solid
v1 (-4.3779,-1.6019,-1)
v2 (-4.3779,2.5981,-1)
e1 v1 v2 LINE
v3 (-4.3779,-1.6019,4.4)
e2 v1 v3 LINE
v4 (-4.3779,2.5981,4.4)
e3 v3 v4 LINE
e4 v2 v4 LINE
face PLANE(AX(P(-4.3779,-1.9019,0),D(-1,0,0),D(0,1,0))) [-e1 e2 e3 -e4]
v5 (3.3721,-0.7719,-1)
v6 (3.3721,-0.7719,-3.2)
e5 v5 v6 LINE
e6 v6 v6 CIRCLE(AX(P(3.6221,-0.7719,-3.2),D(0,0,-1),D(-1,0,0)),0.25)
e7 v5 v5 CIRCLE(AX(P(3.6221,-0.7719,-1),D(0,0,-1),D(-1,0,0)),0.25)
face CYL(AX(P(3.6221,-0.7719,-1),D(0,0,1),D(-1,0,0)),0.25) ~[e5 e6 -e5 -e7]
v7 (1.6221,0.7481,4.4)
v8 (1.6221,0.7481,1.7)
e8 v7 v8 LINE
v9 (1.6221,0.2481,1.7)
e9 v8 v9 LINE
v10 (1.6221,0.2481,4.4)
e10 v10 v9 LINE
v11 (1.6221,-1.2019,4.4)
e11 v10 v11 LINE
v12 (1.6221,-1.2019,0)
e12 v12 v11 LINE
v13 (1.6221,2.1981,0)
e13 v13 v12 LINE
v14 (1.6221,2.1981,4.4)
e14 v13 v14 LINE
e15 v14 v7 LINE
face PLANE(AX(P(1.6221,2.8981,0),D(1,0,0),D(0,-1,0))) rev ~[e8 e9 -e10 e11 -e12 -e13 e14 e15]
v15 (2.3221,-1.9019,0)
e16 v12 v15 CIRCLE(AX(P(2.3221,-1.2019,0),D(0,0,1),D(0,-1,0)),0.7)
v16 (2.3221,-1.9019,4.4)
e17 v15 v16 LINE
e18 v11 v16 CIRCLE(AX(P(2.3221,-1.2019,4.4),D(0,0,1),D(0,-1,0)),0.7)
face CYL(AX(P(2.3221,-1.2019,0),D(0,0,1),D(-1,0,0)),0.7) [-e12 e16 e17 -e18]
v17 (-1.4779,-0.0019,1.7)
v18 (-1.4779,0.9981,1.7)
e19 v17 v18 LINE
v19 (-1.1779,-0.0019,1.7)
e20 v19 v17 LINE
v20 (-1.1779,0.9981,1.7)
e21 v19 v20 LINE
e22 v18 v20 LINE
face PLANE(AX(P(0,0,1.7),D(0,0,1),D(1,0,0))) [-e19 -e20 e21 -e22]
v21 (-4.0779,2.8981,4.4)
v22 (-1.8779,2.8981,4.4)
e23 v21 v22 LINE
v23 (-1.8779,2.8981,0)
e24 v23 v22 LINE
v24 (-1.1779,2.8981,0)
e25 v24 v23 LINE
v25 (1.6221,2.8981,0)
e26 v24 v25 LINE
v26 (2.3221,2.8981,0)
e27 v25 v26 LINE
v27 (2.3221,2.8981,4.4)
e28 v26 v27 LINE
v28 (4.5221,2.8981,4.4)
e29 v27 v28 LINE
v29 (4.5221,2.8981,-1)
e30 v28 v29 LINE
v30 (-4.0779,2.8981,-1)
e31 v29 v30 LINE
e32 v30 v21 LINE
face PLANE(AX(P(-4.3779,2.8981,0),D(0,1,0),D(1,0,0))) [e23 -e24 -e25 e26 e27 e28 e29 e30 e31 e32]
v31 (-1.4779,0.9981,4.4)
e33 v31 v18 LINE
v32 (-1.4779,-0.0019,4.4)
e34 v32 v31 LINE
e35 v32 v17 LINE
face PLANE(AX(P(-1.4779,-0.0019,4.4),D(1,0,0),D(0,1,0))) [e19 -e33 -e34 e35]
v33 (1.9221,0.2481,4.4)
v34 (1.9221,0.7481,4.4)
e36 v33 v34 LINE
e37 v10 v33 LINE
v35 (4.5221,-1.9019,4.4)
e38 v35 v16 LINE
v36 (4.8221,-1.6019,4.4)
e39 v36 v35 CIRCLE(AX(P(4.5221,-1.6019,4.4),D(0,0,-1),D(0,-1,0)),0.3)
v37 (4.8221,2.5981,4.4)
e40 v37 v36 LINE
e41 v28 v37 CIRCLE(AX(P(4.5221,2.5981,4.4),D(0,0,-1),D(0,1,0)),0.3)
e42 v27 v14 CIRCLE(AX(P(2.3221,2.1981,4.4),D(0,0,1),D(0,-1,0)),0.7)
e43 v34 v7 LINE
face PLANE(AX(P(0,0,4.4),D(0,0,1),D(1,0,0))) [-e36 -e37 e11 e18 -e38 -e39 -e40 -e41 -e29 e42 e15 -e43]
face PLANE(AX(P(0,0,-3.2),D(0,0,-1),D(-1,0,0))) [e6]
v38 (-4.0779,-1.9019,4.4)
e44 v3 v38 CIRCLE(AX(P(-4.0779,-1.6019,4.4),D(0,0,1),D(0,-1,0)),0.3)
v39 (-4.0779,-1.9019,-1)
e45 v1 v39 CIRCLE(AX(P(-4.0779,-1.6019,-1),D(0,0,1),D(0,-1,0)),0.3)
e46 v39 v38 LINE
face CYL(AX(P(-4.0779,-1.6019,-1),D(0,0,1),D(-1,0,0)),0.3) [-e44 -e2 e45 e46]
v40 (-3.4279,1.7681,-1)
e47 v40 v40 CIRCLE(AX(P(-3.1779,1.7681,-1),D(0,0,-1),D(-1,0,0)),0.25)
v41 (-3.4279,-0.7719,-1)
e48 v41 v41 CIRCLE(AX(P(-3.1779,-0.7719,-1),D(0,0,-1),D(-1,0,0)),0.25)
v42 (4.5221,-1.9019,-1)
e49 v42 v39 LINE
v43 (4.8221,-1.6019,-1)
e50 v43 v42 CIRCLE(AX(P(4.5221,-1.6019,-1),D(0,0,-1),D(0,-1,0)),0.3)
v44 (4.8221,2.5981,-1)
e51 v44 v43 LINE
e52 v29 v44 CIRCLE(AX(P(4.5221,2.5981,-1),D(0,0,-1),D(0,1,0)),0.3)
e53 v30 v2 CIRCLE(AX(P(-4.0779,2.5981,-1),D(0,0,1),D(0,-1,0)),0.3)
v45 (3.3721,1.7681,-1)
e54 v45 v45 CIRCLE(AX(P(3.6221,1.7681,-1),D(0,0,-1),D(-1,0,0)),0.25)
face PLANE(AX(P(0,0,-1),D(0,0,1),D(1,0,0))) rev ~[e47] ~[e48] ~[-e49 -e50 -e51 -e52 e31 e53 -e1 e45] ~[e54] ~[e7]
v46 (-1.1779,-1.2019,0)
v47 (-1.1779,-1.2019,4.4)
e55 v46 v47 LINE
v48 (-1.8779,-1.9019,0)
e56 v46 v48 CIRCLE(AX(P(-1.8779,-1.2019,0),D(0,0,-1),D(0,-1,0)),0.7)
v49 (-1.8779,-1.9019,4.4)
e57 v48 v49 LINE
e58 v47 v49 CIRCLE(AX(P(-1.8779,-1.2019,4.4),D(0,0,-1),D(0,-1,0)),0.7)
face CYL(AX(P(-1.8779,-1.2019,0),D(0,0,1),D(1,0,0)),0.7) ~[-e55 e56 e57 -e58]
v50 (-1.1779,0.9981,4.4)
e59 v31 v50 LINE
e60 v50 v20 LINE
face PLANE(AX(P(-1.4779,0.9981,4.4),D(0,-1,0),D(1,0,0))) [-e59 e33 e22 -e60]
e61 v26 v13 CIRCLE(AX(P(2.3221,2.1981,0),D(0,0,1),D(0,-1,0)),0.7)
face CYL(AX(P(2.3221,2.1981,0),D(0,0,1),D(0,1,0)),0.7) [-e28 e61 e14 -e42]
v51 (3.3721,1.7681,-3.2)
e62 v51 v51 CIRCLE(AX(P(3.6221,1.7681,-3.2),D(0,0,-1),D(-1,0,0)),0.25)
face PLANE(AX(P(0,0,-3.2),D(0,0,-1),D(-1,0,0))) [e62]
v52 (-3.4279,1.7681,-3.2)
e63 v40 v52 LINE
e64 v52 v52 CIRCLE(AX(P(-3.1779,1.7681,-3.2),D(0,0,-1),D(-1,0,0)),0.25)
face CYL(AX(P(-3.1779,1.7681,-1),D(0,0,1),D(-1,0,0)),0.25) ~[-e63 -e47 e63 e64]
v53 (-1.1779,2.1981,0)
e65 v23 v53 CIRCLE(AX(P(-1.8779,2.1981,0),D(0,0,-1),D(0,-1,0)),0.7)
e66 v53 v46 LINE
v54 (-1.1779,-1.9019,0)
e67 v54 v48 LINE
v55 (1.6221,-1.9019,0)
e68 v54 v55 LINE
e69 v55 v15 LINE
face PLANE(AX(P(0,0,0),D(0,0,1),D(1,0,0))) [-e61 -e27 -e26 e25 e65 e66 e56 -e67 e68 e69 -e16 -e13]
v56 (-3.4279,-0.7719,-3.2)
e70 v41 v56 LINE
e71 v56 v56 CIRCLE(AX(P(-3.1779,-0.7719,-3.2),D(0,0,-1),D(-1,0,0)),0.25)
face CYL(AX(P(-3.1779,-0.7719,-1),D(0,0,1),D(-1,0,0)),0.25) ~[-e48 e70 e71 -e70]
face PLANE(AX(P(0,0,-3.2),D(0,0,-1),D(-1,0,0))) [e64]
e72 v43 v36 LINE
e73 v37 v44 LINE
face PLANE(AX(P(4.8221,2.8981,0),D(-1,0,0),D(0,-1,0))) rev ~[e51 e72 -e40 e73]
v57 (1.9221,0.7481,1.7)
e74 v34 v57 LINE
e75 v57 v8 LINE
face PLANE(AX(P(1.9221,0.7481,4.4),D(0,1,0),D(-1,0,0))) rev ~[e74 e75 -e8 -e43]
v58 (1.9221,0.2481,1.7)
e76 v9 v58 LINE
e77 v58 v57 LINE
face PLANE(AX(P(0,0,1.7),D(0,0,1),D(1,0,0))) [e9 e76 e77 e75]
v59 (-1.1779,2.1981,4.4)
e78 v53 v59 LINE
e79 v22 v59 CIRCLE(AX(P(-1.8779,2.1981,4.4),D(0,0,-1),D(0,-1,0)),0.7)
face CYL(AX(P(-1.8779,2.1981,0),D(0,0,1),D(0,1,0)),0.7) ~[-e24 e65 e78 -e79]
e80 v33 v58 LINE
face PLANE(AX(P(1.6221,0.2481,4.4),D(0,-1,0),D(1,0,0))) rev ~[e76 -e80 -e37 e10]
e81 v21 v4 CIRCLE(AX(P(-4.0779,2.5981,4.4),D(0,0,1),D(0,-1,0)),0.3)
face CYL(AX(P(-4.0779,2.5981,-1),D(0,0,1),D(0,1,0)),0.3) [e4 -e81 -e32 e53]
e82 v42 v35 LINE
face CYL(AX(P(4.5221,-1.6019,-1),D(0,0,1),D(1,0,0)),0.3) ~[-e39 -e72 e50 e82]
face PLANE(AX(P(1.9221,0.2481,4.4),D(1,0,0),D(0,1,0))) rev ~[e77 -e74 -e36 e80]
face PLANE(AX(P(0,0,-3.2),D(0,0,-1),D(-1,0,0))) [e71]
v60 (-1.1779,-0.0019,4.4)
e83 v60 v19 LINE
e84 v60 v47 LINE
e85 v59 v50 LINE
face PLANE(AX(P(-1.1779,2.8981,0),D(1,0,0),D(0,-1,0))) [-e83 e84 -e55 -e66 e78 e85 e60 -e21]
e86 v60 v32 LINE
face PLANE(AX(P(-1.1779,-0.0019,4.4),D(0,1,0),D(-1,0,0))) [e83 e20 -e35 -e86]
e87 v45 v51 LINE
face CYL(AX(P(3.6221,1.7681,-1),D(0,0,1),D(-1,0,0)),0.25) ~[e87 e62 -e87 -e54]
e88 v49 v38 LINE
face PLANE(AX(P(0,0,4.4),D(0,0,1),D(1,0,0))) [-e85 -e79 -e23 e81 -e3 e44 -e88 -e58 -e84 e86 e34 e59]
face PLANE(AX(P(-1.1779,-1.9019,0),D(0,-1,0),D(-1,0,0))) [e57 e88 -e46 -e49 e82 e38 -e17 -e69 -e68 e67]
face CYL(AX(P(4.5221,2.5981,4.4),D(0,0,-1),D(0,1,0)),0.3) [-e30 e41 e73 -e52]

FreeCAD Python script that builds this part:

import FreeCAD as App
import Part
import Sketcher
Q = App.Units.Quantity


def edges_at(feature, points):
    """Names of the edges that pass closest to the given points."""
    edges = feature.Shape.Edges
    near = lambda p: min(range(len(edges)), key=lambda i: edges[i].distToShape(Part.Vertex(*p))[0])
    return sorted({f"Edge{near(p) + 1}" for p in points})

doc = App.newDocument("Part")
params = doc.addObject("Spreadsheet::Sheet", "Params")
for row, (alias, value) in enumerate([
    ("sketch1_width", "3.2 mm"),
    ("sketch1_height", "4.8 mm"),
    ("pad1_length", "4.4 mm"),
    ("sketch2_width", "9.2 mm"),
    ("sketch2_height", "4.8 mm"),
    ("pad2_length", "1 mm"),
    ("sketch3_diameter", "0.5 mm"),
    ("pad3_length", "2.2 mm"),
    ("sketch4_height", "1 mm"),
    ("sketch4_width", "0.3 mm"),
    ("sketch4_height2", "0.5 mm"),
    ("pocket1_length", "2.7 mm"),
    ("fillet_radius", "0.7 mm"),
    ("fillet2_radius", "0.3 mm"),
], start=1):
    params.set(f"A{row}", alias)
    params.set(f"B{row}", "=" + value)
    params.setAlias(f"B{row}", alias)

body = doc.addObject("PartDesign::Body", "Body")
body.AllowCompound = True

# Sketch on XY plane
sketch1 = body.newObject("Sketcher::SketchObject", "Sketch")
sketch1.AttachmentSupport = (doc.getObject("XY_Plane"), [""])
sketch1.MapMode = "FlatFace"
sketch1.addGeometry(Part.LineSegment(App.Vector(-1.1779, 2.8981, 0), App.Vector(-4.3779, 2.8981, 0)), False)
sketch1.addGeometry(Part.LineSegment(App.Vector(-4.3779, 2.8981, 0), App.Vector(-4.3779, -1.9019, 0)), False)
sketch1.addGeometry(Part.LineSegment(App.Vector(-4.3779, -1.9019, 0), App.Vector(-1.1779, -1.9019, 0)), False)
sketch1.addGeometry(Part.LineSegment(App.Vector(-1.1779, -1.9019, 0), App.Vector(-1.1779, 2.8981, 0)), False)
sketch1.addGeometry(Part.LineSegment(App.Vector(4.8221, 2.8981, 0), App.Vector(1.6221, 2.8981, 0)), False)
sketch1.addGeometry(Part.LineSegment(App.Vector(1.6221, 2.8981, 0), App.Vector(1.6221, -1.9019, 0)), False)
sketch1.addGeometry(Part.LineSegment(App.Vector(1.6221, -1.9019, 0), App.Vector(4.8221, -1.9019, 0)), False)
sketch1.addGeometry(Part.LineSegment(App.Vector(4.8221, -1.9019, 0), App.Vector(4.8221, 2.8981, 0)), False)
sketch1.addConstraint(Sketcher.Constraint("Coincident", 0, 2, 1, 1))
sketch1.addConstraint(Sketcher.Constraint("Coincident", 1, 2, 2, 1))
sketch1.addConstraint(Sketcher.Constraint("Coincident", 2, 2, 3, 1))
sketch1.addConstraint(Sketcher.Constraint("Coincident", 3, 2, 0, 1))
sketch1.addConstraint(Sketcher.Constraint("Coincident", 4, 2, 5, 1))
sketch1.addConstraint(Sketcher.Constraint("Coincident", 5, 2, 6, 1))
sketch1.addConstraint(Sketcher.Constraint("Coincident", 6, 2, 7, 1))
sketch1.addConstraint(Sketcher.Constraint("Coincident", 7, 2, 4, 1))
sketch1.addConstraint(Sketcher.Constraint("Horizontal", 0))
sketch1.addConstraint(Sketcher.Constraint("Vertical", 1))
sketch1.addConstraint(Sketcher.Constraint("Horizontal", 2))
sketch1.addConstraint(Sketcher.Constraint("Vertical", 3))
sketch1.addConstraint(Sketcher.Constraint("Horizontal", 4))
sketch1.addConstraint(Sketcher.Constraint("Vertical", 5))
sketch1.addConstraint(Sketcher.Constraint("Horizontal", 6))
sketch1.addConstraint(Sketcher.Constraint("Vertical", 7))
sketch1.addConstraint(Sketcher.Constraint("Horizontal", 3, 2, 4, 2))
sketch1.addConstraint(Sketcher.Constraint("Horizontal", 2, 2, 5, 2))
sketch1.addConstraint(Sketcher.Constraint("Equal", 2, 4))
sketch1.addConstraint(Sketcher.Constraint("DistanceX", 0, 2, 0, 1, Q("3.2 mm")))
sketch1.addConstraint(Sketcher.Constraint("DistanceY", 1, 2, 1, 1, Q("4.8 mm")))
sketch1.addConstraint(Sketcher.Constraint("DistanceX", 3, 2, 4, 2, Q("2.8 mm")))
sketch1.addConstraint(Sketcher.Constraint("DistanceX", 0, 2, -1, 1, Q("4.378 mm")))
sketch1.addConstraint(Sketcher.Constraint("DistanceY", -1, 1, 0, 2, Q("2.898 mm")))
sketch1.setExpression("Constraints[19]", "Params.sketch1_width")
sketch1.setExpression("Constraints[20]", "Params.sketch1_height")
pad1 = body.newObject("PartDesign::Pad", "Pad")
pad1.Profile = sketch1
pad1.setExpression("Length", "Params.pad1_length")

# Sketch on XY plane
sketch2 = body.newObject("Sketcher::SketchObject", "Sketch001")
sketch2.AttachmentSupport = (doc.getObject("XY_Plane"), [""])
sketch2.MapMode = "FlatFace"
sketch2.addGeometry(Part.LineSegment(App.Vector(-4.3779, 2.8981, 0), App.Vector(-4.3779, -1.9019, 0)), False)
sketch2.addGeometry(Part.LineSegment(App.Vector(-4.3779, -1.9019, 0), App.Vector(4.8221, -1.9019, 0)), False)
sketch2.addGeometry(Part.LineSegment(App.Vector(4.8221, -1.9019, 0), App.Vector(4.8221, 2.8981, 0)), False)
sketch2.addGeometry(Part.LineSegment(App.Vector(4.8221, 2.8981, 0), App.Vector(-4.3779, 2.8981, 0)), False)
sketch2.addConstraint(Sketcher.Constraint("Coincident", 0, 2, 1, 1))
sketch2.addConstraint(Sketcher.Constraint("Coincident", 1, 2, 2, 1))
sketch2.addConstraint(Sketcher.Constraint("Coincident", 2, 2, 3, 1))
sketch2.addConstraint(Sketcher.Constraint("Coincident", 3, 2, 0, 1))
sketch2.addConstraint(Sketcher.Constraint("Vertical", 0))
sketch2.addConstraint(Sketcher.Constraint("Horizontal", 1))
sketch2.addConstraint(Sketcher.Constraint("Vertical", 2))
sketch2.addConstraint(Sketcher.Constraint("Horizontal", 3))
sketch2.addConstraint(Sketcher.Constraint("DistanceX", 1, 1, 1, 2, Q("9.2 mm")))
sketch2.addConstraint(Sketcher.Constraint("DistanceY", 0, 2, 0, 1, Q("4.8 mm")))
sketch2.addConstraint(Sketcher.Constraint("DistanceX", 0, 2, -1, 1, Q("4.378 mm")))
sketch2.addConstraint(Sketcher.Constraint("DistanceY", 0, 2, -1, 1, Q("1.902 mm")))
sketch2.setExpression("Constraints[8]", "Params.sketch2_width")
sketch2.setExpression("Constraints[9]", "Params.sketch2_height")
pad2 = body.newObject("PartDesign::Pad", "Pad001")
pad2.Profile = sketch2
pad2.setExpression("Length", "Params.pad2_length")
pad2.Reversed = True

# Sketch on XY plane
sketch3 = body.newObject("Sketcher::SketchObject", "Sketch002")
sketch3.AttachmentSupport = (doc.getObject("XY_Plane"), [""])
sketch3.MapMode = "FlatFace"
sketch3.AttachmentOffset = App.Placement(App.Vector(0, 0, -1), App.Rotation())
sketch3.addGeometry(Part.Circle(App.Vector(3.6221, 1.7681, 0), App.Vector(0, 0, 1), 0.25), False)
sketch3.addGeometry(Part.Circle(App.Vector(3.6221, -0.7719, 0), App.Vector(0, 0, 1), 0.25), False)
sketch3.addGeometry(Part.Circle(App.Vector(-3.1779, 1.7681, 0), App.Vector(0, 0, 1), 0.25), False)
sketch3.addGeometry(Part.Circle(App.Vector(-3.1779, -0.7719, 0), App.Vector(0, 0, 1), 0.25), False)
sketch3.addConstraint(Sketcher.Constraint("Equal", 0, 1))
sketch3.addConstraint(Sketcher.Constraint("Equal", 1, 2))
sketch3.addConstraint(Sketcher.Constraint("Equal", 2, 3))
sketch3.addConstraint(Sketcher.Constraint("Horizontal", 0, 3, 2, 3))
sketch3.addConstraint(Sketcher.Constraint("Horizontal", 1, 3, 3, 3))
sketch3.addConstraint(Sketcher.Constraint("Vertical", 0, 3, 1, 3))
sketch3.addConstraint(Sketcher.Constraint("Vertical", 2, 3, 3, 3))
sketch3.addConstraint(Sketcher.Constraint("Diameter", 0, Q("0.5 mm")))
sketch3.addConstraint(Sketcher.Constraint("DistanceX", 2, 3, 0, 3, Q("6.8 mm")))
sketch3.addConstraint(Sketcher.Constraint("DistanceY", 1, 3, 0, 3, Q("2.54 mm")))
sketch3.addConstraint(Sketcher.Constraint("DistanceX", -1, 1, 0, 3, Q("3.622 mm")))
sketch3.addConstraint(Sketcher.Constraint("DistanceY", -1, 1, 0, 3, Q("1.768 mm")))
sketch3.setExpression("Constraints[7]", "Params.sketch3_diameter")
pad3 = body.newObject("PartDesign::Pad", "Pad002")
pad3.Profile = sketch3
pad3.setExpression("Length", "Params.pad3_length")
pad3.Reversed = True

# Sketch on XY plane
sketch4 = body.newObject("Sketcher::SketchObject", "Sketch003")
sketch4.AttachmentSupport = (doc.getObject("XY_Plane"), [""])
sketch4.MapMode = "FlatFace"
sketch4.AttachmentOffset = App.Placement(App.Vector(0, 0, 4.4), App.Rotation())
sketch4.addGeometry(Part.LineSegment(App.Vector(1.6221, 0.7481, 0), App.Vector(1.6221, 0.2481, 0)), False)
sketch4.addGeometry(Part.LineSegment(App.Vector(1.6221, 0.2481, 0), App.Vector(1.9221, 0.2481, 0)), False)
sketch4.addGeometry(Part.LineSegment(App.Vector(1.9221, 0.2481, 0), App.Vector(1.9221, 0.7481, 0)), False)
sketch4.addGeometry(Part.LineSegment(App.Vector(1.9221, 0.7481, 0), App.Vector(1.6221, 0.7481, 0)), False)
sketch4.addGeometry(Part.LineSegment(App.Vector(-1.1779, -0.0019, 0), App.Vector(-1.1779, 0.9981, 0)), False)
sketch4.addGeometry(Part.LineSegment(App.Vector(-1.1779, 0.9981, 0), App.Vector(-1.4779, 0.9981, 0)), False)
sketch4.addGeometry(Part.LineSegment(App.Vector(-1.4779, 0.9981, 0), App.Vector(-1.4779, -0.0019, 0)), False)
sketch4.addGeometry(Part.LineSegment(App.Vector(-1.4779, -0.0019, 0), App.Vector(-1.1779, -0.0019, 0)), False)
sketch4.addConstraint(Sketcher.Constraint("Coincident", 0, 2, 1, 1))
sketch4.addConstraint(Sketcher.Constraint("Coincident", 1, 2, 2, 1))
sketch4.addConstraint(Sketcher.Constraint("Coincident", 2, 2, 3, 1))
sketch4.addConstraint(Sketcher.Constraint("Coincident", 3, 2, 0, 1))
sketch4.addConstraint(Sketcher.Constraint("Coincident", 4, 2, 5, 1))
sketch4.addConstraint(Sketcher.Constraint("Coincident", 5, 2, 6, 1))
sketch4.addConstraint(Sketcher.Constraint("Coincident", 6, 2, 7, 1))
sketch4.addConstraint(Sketcher.Constraint("Coincident", 7, 2, 4, 1))
sketch4.addConstraint(Sketcher.Constraint("Vertical", 0))
sketch4.addConstraint(Sketcher.Constraint("Horizontal", 1))
sketch4.addConstraint(Sketcher.Constraint("Vertical", 2))
sketch4.addConstraint(Sketcher.Constraint("Horizontal", 3))
sketch4.addConstraint(Sketcher.Constraint("Vertical", 4))
sketch4.addConstraint(Sketcher.Constraint("Horizontal", 5))
sketch4.addConstraint(Sketcher.Constraint("Vertical", 6))
sketch4.addConstraint(Sketcher.Constraint("Horizontal", 7))
sketch4.addConstraint(Sketcher.Constraint("Equal", 3, 5))
sketch4.addConstraint(Sketcher.Constraint("DistanceY", 4, 1, 4, 2, Q("1 mm")))
sketch4.addConstraint(Sketcher.Constraint("DistanceX", 1, 1, 1, 2, Q("0.3 mm")))
sketch4.addConstraint(Sketcher.Constraint("DistanceY", 0, 2, 0, 1, Q("0.5 mm")))
sketch4.addConstraint(Sketcher.Constraint("DistanceX", 4, 2, 3, 2, Q("2.8 mm")))
sketch4.addConstraint(Sketcher.Constraint("DistanceY", 3, 2, 4, 2, Q("0.25 mm")))
sketch4.addConstraint(Sketcher.Constraint("DistanceX", -1, 1, 0, 2, Q("1.622 mm")))
sketch4.addConstraint(Sketcher.Constraint("DistanceY", -1, 1, 0, 2, Q("0.248 mm")))
sketch4.setExpression("Constraints[17]", "Params.sketch4_height")
sketch4.setExpression("Constraints[18]", "Params.sketch4_width")
sketch4.setExpression("Constraints[19]", "Params.sketch4_height2")
pocket1 = body.newObject("PartDesign::Pocket", "Pocket")
pocket1.Profile = sketch4
pocket1.setExpression("Length", "Params.pocket1_length")
doc.recompute()

fillet = body.newObject("PartDesign::Fillet", "Fillet")
fillet.Base = (pocket1, edges_at(pocket1, [
    (1.622, -1.902, 2.2),
    (1.622, 2.898, 2.2),
    (-1.178, 2.898, 2.2),
    (-1.178, -1.902, 2.2),
]))
fillet.setExpression("Radius", "Params.fillet_radius")
doc.recompute()

fillet2 = body.newObject("PartDesign::Fillet", "Fillet001")
fillet2.Base = (fillet, edges_at(fillet, [
    (-4.378, -1.902, 1.7),
    (-4.378, 2.898, 1.7),
    (4.822, 2.898, 1.7),
    (4.822, -1.902, 1.7),
]))
fillet2.setExpression("Radius", "Params.fillet2_radius")

doc.recompute()
